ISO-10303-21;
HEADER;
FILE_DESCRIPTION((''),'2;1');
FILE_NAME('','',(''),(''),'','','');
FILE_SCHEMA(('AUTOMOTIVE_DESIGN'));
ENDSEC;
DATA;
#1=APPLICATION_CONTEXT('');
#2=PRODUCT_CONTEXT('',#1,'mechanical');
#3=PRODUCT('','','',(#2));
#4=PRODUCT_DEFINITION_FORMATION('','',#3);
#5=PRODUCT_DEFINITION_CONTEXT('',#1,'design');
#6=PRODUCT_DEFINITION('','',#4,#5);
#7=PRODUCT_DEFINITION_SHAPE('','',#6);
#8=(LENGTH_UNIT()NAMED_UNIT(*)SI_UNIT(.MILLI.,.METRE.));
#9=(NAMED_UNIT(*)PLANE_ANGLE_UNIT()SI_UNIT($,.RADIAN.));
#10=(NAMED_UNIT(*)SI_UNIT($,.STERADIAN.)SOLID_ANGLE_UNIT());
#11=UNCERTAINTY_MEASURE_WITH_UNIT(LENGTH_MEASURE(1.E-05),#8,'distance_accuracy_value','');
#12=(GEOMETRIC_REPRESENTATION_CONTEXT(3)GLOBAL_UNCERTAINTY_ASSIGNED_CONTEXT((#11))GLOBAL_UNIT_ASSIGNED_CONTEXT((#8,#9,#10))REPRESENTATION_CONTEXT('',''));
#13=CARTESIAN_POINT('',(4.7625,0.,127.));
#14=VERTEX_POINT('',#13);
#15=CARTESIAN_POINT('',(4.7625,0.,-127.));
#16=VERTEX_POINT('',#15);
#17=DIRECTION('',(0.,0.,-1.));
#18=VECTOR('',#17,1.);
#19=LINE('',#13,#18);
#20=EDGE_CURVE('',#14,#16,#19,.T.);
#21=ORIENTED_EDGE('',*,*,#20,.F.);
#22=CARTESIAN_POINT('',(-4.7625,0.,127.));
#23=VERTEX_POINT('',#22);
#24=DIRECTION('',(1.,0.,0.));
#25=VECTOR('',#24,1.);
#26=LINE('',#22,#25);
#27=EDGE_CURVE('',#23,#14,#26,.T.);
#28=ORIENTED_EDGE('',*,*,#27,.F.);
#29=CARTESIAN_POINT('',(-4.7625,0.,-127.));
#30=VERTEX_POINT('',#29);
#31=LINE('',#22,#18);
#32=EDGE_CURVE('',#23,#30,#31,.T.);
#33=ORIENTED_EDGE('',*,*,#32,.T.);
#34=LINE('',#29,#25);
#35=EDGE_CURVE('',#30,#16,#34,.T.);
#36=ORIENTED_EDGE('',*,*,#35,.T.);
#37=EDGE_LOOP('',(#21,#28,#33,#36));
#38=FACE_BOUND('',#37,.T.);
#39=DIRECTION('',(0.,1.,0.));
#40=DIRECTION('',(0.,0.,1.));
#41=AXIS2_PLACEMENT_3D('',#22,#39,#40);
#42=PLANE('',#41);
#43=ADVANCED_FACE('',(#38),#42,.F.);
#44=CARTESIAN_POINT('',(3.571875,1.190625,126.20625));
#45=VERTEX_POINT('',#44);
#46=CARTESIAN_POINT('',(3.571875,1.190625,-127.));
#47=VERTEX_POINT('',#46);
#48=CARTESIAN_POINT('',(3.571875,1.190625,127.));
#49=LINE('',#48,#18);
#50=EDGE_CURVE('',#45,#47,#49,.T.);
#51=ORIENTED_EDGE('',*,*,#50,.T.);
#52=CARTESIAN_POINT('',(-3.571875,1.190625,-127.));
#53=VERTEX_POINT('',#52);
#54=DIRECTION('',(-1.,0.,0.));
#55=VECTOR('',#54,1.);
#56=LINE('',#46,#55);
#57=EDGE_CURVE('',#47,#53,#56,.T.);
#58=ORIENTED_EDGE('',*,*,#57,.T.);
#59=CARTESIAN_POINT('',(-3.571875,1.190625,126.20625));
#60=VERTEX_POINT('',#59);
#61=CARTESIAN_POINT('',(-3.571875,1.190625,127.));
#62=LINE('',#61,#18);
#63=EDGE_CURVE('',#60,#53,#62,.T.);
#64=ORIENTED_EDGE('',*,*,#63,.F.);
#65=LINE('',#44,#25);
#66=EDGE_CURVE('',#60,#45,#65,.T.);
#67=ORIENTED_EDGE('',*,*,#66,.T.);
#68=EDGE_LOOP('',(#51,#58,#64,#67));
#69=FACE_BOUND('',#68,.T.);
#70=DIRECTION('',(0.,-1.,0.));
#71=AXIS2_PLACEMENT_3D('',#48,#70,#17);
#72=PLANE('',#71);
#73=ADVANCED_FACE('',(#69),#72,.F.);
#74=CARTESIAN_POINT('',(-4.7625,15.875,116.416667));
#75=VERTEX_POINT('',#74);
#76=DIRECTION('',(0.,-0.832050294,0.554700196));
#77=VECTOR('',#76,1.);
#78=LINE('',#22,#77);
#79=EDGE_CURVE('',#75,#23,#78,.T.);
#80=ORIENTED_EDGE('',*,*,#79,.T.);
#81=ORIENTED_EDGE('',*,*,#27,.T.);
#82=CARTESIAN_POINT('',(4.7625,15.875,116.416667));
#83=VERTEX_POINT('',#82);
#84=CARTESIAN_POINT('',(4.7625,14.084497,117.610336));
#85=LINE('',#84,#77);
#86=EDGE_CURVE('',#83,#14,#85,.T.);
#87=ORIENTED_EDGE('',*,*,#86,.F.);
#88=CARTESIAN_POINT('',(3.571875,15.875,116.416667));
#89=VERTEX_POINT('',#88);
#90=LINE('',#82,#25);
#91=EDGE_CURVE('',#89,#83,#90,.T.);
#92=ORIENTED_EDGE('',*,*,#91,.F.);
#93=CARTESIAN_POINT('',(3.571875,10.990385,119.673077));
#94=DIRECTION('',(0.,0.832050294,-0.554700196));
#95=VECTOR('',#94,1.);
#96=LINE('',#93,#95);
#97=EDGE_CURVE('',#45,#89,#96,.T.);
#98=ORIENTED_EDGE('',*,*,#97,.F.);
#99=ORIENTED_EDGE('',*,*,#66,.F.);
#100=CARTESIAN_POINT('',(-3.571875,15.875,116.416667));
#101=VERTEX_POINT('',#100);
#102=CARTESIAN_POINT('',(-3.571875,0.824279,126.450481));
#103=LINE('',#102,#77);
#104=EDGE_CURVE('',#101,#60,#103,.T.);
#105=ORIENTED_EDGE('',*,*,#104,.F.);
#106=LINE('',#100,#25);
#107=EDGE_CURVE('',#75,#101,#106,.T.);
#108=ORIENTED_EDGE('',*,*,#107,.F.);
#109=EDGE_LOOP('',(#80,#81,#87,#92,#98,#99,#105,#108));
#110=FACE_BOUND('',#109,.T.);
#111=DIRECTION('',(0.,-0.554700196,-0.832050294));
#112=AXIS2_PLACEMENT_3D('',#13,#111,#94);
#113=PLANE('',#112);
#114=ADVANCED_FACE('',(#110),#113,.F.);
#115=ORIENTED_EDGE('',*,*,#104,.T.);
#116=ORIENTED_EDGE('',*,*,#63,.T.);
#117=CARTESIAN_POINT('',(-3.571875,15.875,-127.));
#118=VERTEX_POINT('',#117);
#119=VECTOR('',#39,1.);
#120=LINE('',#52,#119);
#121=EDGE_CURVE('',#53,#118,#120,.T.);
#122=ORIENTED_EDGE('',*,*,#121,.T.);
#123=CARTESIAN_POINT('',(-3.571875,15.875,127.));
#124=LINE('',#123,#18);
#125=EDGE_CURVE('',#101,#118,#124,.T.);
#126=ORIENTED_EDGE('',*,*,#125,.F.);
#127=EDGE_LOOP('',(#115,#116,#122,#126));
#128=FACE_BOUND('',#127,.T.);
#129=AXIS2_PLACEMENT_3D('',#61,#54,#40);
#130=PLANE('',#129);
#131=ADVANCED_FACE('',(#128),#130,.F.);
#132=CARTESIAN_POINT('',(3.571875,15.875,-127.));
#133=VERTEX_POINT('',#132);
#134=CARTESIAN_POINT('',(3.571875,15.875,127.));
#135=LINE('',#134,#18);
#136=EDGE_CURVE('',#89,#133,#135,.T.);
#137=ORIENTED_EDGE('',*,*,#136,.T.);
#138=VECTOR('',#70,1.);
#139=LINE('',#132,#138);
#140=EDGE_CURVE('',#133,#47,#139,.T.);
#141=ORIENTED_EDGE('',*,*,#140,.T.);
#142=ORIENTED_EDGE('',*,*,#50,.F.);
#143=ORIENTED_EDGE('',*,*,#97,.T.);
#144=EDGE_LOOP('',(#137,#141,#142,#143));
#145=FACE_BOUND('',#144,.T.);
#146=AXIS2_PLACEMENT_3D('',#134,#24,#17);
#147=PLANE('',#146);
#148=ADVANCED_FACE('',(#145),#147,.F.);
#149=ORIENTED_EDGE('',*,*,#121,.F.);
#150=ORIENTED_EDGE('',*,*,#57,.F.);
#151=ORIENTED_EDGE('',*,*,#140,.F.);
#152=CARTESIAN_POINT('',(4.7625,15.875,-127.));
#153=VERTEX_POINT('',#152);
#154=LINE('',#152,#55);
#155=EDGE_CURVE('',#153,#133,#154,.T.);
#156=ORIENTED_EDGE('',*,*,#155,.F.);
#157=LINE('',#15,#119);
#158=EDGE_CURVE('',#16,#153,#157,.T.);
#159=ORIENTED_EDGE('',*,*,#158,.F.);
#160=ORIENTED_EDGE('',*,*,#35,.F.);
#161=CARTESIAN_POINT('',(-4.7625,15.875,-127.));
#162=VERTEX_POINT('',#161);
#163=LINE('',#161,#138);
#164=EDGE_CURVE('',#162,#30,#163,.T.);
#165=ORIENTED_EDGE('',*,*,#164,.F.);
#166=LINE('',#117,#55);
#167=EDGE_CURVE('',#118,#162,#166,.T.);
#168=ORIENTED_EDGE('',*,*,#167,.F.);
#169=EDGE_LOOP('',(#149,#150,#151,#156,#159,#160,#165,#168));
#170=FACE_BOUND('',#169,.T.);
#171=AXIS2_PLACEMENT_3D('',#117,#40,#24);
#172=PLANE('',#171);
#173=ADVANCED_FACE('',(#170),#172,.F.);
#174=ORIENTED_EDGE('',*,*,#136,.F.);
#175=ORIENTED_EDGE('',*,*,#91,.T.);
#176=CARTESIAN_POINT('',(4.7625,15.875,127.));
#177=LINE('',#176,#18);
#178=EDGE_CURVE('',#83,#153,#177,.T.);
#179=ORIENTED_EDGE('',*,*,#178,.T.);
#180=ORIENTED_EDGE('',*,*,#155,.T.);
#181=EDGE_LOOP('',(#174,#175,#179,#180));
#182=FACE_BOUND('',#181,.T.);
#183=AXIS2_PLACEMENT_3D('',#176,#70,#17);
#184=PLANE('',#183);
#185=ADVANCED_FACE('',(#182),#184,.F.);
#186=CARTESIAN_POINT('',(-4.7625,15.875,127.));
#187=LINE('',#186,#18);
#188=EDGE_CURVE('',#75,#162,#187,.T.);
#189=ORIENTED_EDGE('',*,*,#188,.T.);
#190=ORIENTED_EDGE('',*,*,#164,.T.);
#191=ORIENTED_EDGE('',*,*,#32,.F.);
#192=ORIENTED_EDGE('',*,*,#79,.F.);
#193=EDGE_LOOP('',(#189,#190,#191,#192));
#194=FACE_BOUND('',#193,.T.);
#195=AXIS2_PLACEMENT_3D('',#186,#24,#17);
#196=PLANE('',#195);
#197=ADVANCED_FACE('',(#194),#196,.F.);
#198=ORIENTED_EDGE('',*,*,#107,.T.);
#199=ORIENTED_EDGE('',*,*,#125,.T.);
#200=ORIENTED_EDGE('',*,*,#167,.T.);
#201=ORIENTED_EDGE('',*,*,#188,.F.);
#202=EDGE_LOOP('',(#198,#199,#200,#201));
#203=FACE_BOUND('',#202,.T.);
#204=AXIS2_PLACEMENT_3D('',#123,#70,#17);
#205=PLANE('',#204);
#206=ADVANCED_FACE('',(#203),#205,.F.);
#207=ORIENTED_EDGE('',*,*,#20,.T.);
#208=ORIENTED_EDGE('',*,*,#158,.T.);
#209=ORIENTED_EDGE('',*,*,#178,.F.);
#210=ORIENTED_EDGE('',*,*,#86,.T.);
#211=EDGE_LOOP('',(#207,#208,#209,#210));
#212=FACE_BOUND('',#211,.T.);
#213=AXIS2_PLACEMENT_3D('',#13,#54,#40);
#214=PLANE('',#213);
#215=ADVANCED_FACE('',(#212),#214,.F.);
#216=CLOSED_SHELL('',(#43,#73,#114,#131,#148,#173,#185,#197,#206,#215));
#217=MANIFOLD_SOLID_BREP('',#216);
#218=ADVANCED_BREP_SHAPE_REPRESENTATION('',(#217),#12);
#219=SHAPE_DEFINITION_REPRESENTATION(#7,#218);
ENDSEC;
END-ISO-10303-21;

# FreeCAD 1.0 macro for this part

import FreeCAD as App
import Part
import Sketcher
Q = App.Units.Quantity


def add_polygon(sketch, points):
    """Adds a closed chain of lines whose ends are joined by coincident constraints."""
    first, n = sketch.GeometryCount, len(points)
    for a, b in zip(points, points[1:] + points[:1]):
        sketch.addGeometry(Part.LineSegment(App.Vector(*a, 0), App.Vector(*b, 0)), False)
    for i in range(n):
        sketch.addConstraint(Sketcher.Constraint("Coincident", first + i, 2, first + (i + 1) % n, 1))

doc = App.newDocument("Part")
body = doc.addObject("PartDesign::Body", "Body")

# Sketch on XY plane
sketch1 = body.newObject("Sketcher::SketchObject", "Sketch")
sketch1.AttachmentSupport = (doc.getObject("XY_Plane"), [""])
sketch1.MapMode = "FlatFace"
add_polygon(sketch1, [(-3.6, 15.9), (-4.8, 15.9), (-4.8, 0), (4.8, 0), (4.8, 15.9), (3.6, 15.9), (3.6, 1.2), (-3.6, 1.2)])  # lines 0-7
sketch1.addConstraint([
    Sketcher.Constraint("Horizontal", 0),
    Sketcher.Constraint("Vertical", 1),
    Sketcher.Constraint("Horizontal", 2),
    Sketcher.Constraint("Vertical", 3),
    Sketcher.Constraint("Horizontal", 4),
    Sketcher.Constraint("Vertical", 5),
    Sketcher.Constraint("Horizontal", 6),
    Sketcher.Constraint("Vertical", 7),
    Sketcher.Constraint("Symmetric", 1, 2, 2, 2, -1, 1),
    Sketcher.Constraint("Symmetric", 4, 2, 7, 2, -2),
    Sketcher.Constraint("DistanceX", 0, 2, 0, 1, Q("0.046875 in")),
    Sketcher.Constraint("DistanceX", 2, 1, 2, 2, Q("0.375 in")),
    Sketcher.Constraint("DistanceY", 1, 2, 1, 1, Q("0.625 in")),
    Sketcher.Constraint("DistanceY", 5, 2, 5, 1, Q("0.578125 in")),
])
pad1 = body.newObject("PartDesign::Pad", "Pad")
pad1.Profile = sketch1
pad1.Length = Q("10 in")
pad1.Midplane = True

# Sketch on YZ plane
sketch2 = body.newObject("Sketcher::SketchObject", "Sketch001")
sketch2.AttachmentSupport = (doc.getObject("YZ_Plane"), [""])
sketch2.MapMode = "FlatFace"
sketch2.AttachmentOffset = App.Placement(App.Vector(0, 0, -0.1875 * 25.4), App.Rotation())
add_polygon(sketch2, [(31, 106), (0, 127), (12, 158)])  # lines 0-2
sketch2.addConstraint([
    Sketcher.Constraint("PointOnObject", 0, 2, -2),
    Sketcher.Constraint("DistanceY", -1, 1, 0, 2, Q("5 in")),
    Sketcher.Constraint("Distance", 1, Q("33.07228 mm")),
    Sketcher.Constraint("DistanceY", -1, 1, 1, 2, Q("157.683078 mm")),
    Sketcher.Constraint("DistanceX", -1, 1, 2, 2, Q("31.243891 mm")),
    Sketcher.Constraint("DistanceY", -1, 1, 2, 2, Q("106.170739 mm")),
])
pocket1 = body.newObject("PartDesign::Pocket", "Pocket")
pocket1.Profile = sketch2
pocket1.Type = "ThroughAll"
pocket1.Reversed = True

doc.recompute()
